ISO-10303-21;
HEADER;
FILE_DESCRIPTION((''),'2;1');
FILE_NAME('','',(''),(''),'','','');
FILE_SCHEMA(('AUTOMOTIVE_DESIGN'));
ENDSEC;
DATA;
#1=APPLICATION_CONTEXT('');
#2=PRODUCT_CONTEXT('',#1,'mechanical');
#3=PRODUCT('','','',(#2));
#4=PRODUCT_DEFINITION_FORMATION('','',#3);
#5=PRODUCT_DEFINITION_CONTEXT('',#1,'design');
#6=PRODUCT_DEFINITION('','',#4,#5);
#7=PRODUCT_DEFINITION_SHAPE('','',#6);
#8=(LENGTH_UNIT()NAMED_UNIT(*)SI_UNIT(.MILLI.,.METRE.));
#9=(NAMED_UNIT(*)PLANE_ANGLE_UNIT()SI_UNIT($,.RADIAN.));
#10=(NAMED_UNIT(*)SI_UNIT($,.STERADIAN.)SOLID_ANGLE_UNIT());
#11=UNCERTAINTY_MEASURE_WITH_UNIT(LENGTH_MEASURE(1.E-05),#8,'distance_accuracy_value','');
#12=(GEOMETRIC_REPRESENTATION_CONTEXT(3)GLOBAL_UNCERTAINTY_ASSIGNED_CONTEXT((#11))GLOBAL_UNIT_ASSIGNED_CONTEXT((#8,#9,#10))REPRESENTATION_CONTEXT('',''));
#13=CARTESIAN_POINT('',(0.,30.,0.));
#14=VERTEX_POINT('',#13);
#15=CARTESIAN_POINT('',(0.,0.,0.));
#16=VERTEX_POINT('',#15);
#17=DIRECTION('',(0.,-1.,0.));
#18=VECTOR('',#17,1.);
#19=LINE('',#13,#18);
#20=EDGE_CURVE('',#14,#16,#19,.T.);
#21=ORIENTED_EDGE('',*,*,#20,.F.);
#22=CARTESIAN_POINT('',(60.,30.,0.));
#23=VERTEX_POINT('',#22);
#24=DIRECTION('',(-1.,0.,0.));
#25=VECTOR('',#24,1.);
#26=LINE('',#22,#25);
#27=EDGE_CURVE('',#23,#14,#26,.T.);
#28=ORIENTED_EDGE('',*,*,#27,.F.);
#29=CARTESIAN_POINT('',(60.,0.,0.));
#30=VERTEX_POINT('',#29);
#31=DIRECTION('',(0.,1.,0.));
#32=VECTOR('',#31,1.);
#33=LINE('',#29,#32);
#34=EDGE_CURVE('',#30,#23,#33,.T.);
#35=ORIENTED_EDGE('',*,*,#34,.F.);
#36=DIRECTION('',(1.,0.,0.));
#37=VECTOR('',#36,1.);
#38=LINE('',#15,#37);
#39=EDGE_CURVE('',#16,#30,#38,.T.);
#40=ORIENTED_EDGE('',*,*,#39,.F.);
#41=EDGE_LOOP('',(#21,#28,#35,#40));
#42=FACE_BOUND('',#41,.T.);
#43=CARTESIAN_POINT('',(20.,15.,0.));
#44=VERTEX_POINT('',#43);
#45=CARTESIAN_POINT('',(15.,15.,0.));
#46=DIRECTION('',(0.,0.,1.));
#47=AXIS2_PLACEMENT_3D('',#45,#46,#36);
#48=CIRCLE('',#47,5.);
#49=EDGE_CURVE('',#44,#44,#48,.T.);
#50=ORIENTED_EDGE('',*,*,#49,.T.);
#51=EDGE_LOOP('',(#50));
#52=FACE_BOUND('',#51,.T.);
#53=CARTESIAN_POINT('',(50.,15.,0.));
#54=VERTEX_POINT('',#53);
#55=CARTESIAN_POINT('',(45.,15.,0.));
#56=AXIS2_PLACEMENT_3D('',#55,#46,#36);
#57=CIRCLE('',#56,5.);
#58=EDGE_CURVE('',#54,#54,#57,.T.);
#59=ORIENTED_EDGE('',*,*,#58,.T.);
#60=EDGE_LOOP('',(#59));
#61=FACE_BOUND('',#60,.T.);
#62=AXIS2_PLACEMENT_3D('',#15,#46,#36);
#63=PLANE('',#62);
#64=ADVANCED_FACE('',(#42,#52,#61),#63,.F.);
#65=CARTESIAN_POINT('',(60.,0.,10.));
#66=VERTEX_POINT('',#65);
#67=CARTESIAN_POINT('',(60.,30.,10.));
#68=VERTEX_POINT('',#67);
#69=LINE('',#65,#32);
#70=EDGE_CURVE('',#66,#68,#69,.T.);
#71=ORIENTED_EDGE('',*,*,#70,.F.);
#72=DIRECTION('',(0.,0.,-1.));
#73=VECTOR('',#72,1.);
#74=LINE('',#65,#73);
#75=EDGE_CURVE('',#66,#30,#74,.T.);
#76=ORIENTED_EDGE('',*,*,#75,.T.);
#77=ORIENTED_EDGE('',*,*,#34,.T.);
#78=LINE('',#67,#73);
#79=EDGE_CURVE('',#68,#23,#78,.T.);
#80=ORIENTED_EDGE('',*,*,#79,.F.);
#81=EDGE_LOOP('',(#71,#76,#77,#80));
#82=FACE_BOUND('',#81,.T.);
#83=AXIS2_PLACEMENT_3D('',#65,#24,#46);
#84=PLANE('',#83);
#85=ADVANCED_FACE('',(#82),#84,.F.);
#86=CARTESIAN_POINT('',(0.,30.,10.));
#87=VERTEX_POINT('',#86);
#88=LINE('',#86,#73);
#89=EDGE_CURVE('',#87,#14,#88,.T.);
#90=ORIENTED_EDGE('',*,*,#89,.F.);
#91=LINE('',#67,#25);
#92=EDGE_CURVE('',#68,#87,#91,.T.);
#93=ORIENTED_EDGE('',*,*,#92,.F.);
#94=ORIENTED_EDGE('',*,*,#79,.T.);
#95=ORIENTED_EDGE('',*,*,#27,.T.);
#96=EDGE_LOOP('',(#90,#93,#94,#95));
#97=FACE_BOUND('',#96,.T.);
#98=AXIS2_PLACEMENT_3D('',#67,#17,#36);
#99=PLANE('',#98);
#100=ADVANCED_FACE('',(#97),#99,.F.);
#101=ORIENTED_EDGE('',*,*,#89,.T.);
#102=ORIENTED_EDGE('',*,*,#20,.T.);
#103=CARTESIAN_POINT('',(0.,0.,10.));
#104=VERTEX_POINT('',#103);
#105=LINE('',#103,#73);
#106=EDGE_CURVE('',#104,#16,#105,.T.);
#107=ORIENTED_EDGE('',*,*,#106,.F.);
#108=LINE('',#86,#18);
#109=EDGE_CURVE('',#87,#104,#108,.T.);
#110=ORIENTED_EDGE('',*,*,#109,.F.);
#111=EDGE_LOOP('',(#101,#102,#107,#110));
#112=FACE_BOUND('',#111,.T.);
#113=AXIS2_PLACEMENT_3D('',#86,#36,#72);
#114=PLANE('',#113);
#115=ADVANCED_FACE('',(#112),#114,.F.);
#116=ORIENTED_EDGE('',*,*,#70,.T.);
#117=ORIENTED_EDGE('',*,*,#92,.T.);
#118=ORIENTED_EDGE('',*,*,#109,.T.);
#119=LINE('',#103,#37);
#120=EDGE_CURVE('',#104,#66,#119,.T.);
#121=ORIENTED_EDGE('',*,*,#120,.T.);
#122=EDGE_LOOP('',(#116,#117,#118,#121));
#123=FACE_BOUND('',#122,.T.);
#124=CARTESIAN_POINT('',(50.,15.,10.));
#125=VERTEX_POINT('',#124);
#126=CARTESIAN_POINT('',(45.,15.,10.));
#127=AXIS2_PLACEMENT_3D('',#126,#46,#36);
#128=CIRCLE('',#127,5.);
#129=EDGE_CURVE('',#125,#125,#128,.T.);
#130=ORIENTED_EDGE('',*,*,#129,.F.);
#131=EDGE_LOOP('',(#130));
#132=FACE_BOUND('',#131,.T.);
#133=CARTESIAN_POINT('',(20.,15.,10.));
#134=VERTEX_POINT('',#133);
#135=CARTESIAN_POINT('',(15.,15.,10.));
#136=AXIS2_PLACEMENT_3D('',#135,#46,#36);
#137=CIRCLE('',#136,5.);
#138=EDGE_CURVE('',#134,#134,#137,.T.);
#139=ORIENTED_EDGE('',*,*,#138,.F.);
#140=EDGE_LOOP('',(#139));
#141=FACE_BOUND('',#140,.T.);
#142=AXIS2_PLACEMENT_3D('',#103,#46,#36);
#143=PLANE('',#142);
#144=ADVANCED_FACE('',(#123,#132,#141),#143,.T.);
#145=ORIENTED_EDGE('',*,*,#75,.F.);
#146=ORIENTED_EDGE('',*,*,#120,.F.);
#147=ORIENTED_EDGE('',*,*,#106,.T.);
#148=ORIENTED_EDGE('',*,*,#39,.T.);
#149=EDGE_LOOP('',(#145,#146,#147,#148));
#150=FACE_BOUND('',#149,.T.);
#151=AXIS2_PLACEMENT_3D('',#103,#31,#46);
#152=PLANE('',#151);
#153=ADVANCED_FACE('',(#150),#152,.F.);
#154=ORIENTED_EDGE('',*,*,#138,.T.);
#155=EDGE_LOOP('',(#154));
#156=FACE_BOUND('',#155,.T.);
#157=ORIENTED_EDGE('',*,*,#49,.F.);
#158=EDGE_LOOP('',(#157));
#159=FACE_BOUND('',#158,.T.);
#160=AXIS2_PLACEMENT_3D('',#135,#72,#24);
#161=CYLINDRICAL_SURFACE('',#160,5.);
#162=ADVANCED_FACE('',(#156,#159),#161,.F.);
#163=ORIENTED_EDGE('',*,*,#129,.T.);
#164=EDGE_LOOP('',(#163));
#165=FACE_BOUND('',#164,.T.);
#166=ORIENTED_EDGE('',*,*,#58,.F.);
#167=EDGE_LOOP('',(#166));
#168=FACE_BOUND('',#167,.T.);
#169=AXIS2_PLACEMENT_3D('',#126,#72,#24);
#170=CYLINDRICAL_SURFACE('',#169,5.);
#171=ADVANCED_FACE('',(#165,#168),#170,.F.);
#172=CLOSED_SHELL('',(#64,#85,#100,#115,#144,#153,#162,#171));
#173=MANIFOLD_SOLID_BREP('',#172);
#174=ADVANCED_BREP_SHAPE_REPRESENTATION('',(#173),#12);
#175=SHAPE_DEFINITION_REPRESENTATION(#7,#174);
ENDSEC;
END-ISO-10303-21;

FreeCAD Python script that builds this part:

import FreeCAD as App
import Part
import Sketcher

V = App.Vector

doc = App.newDocument("Part")
params = doc.addObject("Spreadsheet::Sheet", "Params")
for row, (alias, value) in enumerate([
    ("sketch1_diameter", "10 mm"),
    ("sketch1_width", "60 mm"),
    ("sketch1_height", "30 mm"),
    ("pad1_length", "10 mm"),
], start=1):
    params.set(f"A{row}", alias)
    params.set(f"B{row}", "=" + value)
    params.setAlias(f"B{row}", alias)

body = doc.addObject("PartDesign::Body", "Body")

# Sketch on XY plane
sketch1 = body.newObject("Sketcher::SketchObject", "Sketch")
sketch1.AttachmentSupport = (doc.getObject("XY_Plane"), [""])
sketch1.MapMode = "FlatFace"
sketch1.addGeometry(Part.LineSegment(V(0, 30, 0), V(0, 0, 0)), False)
sketch1.addGeometry(Part.LineSegment(V(0, 0, 0), V(60, 0, 0)), False)
sketch1.addGeometry(Part.LineSegment(V(60, 0, 0), V(60, 30, 0)), False)
sketch1.addGeometry(Part.LineSegment(V(60, 30, 0), V(0, 30, 0)), False)
sketch1.addGeometry(Part.Circle(V(15, 15, 0), V(0, 0, 1), 5), False)
sketch1.addGeometry(Part.Circle(V(45, 15, 0), V(0, 0, 1), 5), False)
sketch1.addConstraint(Sketcher.Constraint("Coincident", 0, 2, 1, 1))
sketch1.addConstraint(Sketcher.Constraint("Coincident", 1, 2, 2, 1))
sketch1.addConstraint(Sketcher.Constraint("Coincident", 2, 2, 3, 1))
sketch1.addConstraint(Sketcher.Constraint("Coincident", 3, 2, 0, 1))
sketch1.addConstraint(Sketcher.Constraint("Vertical", 0))
sketch1.addConstraint(Sketcher.Constraint("Horizontal", 1))
sketch1.addConstraint(Sketcher.Constraint("Vertical", 2))
sketch1.addConstraint(Sketcher.Constraint("Horizontal", 3))
sketch1.addConstraint(Sketcher.Constraint("Coincident", 0, 2, -1, 1))
sketch1.addConstraint(Sketcher.Constraint("Equal", 4, 5))
sketch1.addConstraint(Sketcher.Constraint("Horizontal", 4, 3, 5, 3))
sketch1.addConstraint(Sketcher.Constraint("Diameter", 4, 10.0))
sketch1.addConstraint(Sketcher.Constraint("DistanceX", 1, 1, 1, 2, 60.0))
sketch1.addConstraint(Sketcher.Constraint("DistanceY", 0, 2, 0, 1, 30.0))
sketch1.addConstraint(Sketcher.Constraint("DistanceX", -1, 1, 4, 3, 15.0))
sketch1.addConstraint(Sketcher.Constraint("DistanceY", -1, 1, 4, 3, 15.0))
sketch1.addConstraint(Sketcher.Constraint("DistanceX", -1, 1, 5, 3, 45.0))
sketch1.setExpression("Constraints[11]", "Params.sketch1_diameter")
sketch1.setExpression("Constraints[12]", "Params.sketch1_width")
sketch1.setExpression("Constraints[13]", "Params.sketch1_height")
pad1 = body.newObject("PartDesign::Pad", "Pad")
pad1.Profile = sketch1
pad1.setExpression("Length", "Params.pad1_length")

doc.recompute()
